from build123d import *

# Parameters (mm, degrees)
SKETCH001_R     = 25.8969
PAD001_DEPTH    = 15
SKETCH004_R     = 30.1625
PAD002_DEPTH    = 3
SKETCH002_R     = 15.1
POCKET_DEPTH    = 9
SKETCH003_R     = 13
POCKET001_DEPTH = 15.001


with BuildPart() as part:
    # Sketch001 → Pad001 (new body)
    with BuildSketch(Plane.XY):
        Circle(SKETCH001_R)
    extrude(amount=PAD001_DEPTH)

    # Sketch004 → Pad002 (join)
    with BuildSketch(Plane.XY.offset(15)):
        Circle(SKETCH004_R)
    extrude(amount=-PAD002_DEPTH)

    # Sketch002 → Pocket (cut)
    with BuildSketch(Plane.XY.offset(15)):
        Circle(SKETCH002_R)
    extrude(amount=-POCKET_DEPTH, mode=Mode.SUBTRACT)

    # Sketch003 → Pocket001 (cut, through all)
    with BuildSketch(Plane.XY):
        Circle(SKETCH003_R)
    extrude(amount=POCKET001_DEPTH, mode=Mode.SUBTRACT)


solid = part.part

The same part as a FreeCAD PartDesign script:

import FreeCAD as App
import Part
import Sketcher

V = App.Vector
Q = App.Units.Quantity

doc = App.newDocument("Part")
body = doc.addObject("PartDesign::Body", "Body")

sketch1 = body.newObject("Sketcher::SketchObject", "Sketch")
sketch1.AttachmentSupport = (doc.getObject("XY_Plane"), [""])
sketch1.MapMode = "FlatFace"
sketch1.addGeometry(Part.Circle(V(0, 0, 0), V(0, 0, 1), 26), False)
sketch1.addConstraint([
    Sketcher.Constraint("Coincident", 0, 3, -1, 1),
    Sketcher.Constraint("Diameter", 0, Q("51.7938 mm")),
])
pad1 = body.newObject("PartDesign::Pad", "Pad")
pad1.Profile = sketch1
pad1.Length = 15

sketch2 = body.newObject("Sketcher::SketchObject", "Sketch001")
sketch2.AttachmentSupport = (doc.getObject("XY_Plane"), [""])
sketch2.MapMode = "FlatFace"
sketch2.AttachmentOffset = App.Placement(V(0, 0, 15), App.Rotation())
sketch2.addGeometry(Part.Circle(V(0, 0, 0), V(0, 0, 1), 30), False)
sketch2.addConstraint([
    Sketcher.Constraint("Coincident", 0, 3, -1, 1),
    Sketcher.Constraint("Diameter", 0, Q("60.325 mm")),
])
pad2 = body.newObject("PartDesign::Pad", "Pad001")
pad2.Profile = sketch2
pad2.Length = 3
pad2.Reversed = True

sketch3 = body.newObject("Sketcher::SketchObject", "Sketch002")
sketch3.AttachmentSupport = (doc.getObject("XY_Plane"), [""])
sketch3.MapMode = "FlatFace"
sketch3.AttachmentOffset = App.Placement(V(0, 0, 15), App.Rotation())
sketch3.addGeometry(Part.Circle(V(0, 0, 0), V(0, 0, 1), 15), False)
sketch3.addConstraint([
    Sketcher.Constraint("Coincident", 0, 3, -1, 1),
    Sketcher.Constraint("Diameter", 0, Q("30.2 mm")),
])
pocket1 = body.newObject("PartDesign::Pocket", "Pocket")
pocket1.Profile = sketch3
pocket1.Length = 9

sketch4 = body.newObject("Sketcher::SketchObject", "Sketch003")
sketch4.AttachmentSupport = (doc.getObject("XY_Plane"), [""])
sketch4.MapMode = "FlatFace"
sketch4.addGeometry(Part.Circle(V(0, 0, 0), V(0, 0, 1), 13), False)
sketch4.addConstraint([
    Sketcher.Constraint("Coincident", 0, 3, -1, 1),
    Sketcher.Constraint("Diameter", 0, Q("26 mm")),
])
pocket2 = body.newObject("PartDesign::Pocket", "Pocket001")
pocket2.Profile = sketch4
pocket2.Type = "ThroughAll"
pocket2.Reversed = True

doc.recompute()
